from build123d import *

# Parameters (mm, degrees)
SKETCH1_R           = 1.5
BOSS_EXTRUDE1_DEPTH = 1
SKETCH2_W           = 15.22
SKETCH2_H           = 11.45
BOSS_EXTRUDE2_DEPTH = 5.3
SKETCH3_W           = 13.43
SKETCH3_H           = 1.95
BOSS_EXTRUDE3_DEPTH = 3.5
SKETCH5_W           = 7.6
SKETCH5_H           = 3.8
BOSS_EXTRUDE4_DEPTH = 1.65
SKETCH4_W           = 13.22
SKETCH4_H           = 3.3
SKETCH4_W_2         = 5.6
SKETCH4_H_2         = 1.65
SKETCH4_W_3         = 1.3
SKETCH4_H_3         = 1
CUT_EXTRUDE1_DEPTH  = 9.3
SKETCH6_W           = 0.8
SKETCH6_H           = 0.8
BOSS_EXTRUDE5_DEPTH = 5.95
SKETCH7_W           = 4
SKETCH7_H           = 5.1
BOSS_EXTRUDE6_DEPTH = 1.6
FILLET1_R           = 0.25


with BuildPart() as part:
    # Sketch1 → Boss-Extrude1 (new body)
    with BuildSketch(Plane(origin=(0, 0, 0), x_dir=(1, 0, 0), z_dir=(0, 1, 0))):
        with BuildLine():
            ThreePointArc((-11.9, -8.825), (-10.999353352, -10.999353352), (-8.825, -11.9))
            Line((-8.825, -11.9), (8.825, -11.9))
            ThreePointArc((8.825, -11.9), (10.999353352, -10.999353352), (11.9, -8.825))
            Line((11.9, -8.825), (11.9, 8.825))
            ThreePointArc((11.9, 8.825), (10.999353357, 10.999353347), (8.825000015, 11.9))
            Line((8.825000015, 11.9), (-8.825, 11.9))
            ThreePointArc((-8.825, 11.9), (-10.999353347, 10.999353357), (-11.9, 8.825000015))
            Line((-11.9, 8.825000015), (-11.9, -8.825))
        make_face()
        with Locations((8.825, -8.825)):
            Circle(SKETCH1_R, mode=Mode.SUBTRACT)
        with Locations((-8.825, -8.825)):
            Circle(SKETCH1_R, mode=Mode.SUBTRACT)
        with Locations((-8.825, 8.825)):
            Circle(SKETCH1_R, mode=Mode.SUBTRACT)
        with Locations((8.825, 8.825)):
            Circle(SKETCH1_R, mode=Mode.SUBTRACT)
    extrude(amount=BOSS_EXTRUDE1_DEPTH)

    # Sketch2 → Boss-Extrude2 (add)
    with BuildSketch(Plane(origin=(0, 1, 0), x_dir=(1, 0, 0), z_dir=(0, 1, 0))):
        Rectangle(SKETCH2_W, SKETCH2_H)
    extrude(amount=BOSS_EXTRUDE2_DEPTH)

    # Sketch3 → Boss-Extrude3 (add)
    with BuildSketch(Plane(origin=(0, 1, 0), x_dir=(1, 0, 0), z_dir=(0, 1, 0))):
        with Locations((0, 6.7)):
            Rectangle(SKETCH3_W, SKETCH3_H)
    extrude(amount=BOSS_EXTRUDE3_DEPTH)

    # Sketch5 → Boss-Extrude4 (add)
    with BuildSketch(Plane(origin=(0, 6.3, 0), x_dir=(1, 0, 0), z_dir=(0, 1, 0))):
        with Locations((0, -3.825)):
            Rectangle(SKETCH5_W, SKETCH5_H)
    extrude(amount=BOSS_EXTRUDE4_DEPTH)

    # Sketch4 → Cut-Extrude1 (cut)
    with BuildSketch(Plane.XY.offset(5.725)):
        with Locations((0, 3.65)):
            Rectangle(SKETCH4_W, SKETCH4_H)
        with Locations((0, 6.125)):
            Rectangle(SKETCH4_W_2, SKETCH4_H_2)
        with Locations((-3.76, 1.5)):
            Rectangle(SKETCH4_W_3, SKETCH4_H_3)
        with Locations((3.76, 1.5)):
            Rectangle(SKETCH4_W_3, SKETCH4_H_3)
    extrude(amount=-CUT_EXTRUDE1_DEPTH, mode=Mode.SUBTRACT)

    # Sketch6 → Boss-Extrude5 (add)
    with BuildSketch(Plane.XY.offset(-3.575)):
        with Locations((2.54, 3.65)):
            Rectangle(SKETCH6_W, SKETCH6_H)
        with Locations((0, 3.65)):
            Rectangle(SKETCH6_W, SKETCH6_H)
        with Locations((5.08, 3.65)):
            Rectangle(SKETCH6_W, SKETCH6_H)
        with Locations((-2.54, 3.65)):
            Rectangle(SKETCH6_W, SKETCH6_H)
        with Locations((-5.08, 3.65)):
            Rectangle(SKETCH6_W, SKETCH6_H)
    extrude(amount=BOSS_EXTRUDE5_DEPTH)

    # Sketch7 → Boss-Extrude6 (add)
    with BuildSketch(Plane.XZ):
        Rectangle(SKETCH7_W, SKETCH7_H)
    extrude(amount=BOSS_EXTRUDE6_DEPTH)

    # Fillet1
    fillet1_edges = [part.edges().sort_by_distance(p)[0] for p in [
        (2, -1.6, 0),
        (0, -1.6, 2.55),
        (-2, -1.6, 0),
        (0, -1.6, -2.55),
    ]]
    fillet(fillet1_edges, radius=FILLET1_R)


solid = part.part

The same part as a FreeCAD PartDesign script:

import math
import FreeCAD as App
import Part
import Sketcher
Q = App.Units.Quantity


def edges_at(feature, points):
    """Names of the edges that pass closest to the given points."""
    edges = feature.Shape.Edges
    near = lambda p: min(range(len(edges)), key=lambda i: edges[i].distToShape(Part.Vertex(*p))[0])
    return sorted({f"Edge{near(p) + 1}" for p in points})


def add_polygon(sketch, points):
    """Adds a closed chain of lines whose ends are joined by coincident constraints."""
    first, n = sketch.GeometryCount, len(points)
    for a, b in zip(points, points[1:] + points[:1]):
        sketch.addGeometry(Part.LineSegment(App.Vector(*a, 0), App.Vector(*b, 0)), False)
    for i in range(n):
        sketch.addConstraint(Sketcher.Constraint("Coincident", first + i, 2, first + (i + 1) % n, 1))

doc = App.newDocument("Part")
body = doc.addObject("PartDesign::Body", "Body")

# Sketch on XZ plane
sketch1 = doc.addObject("Sketcher::SketchObject", "Sketch")
body.addObject(sketch1)
sketch1.AttachmentSupport = (doc.XZ_Plane, [""])
sketch1.MapMode = "FlatFace"
sketch1.addGeometry(Part.ArcOfCircle(Part.Circle(App.Vector(-8.8, 8.8, 0), App.Vector(0, 0, 1), 3.1), math.radians(90), math.radians(180)), False)
sketch1.addGeometry(Part.LineSegment(App.Vector(-8.8, 11.9, 0), App.Vector(8.8, 11.9, 0)), False)
sketch1.addGeometry(Part.ArcOfCircle(Part.Circle(App.Vector(8.8, 8.8, 0), App.Vector(0, 0, 1), 3.1), math.radians(0), math.radians(90)), False)
sketch1.addGeometry(Part.LineSegment(App.Vector(11.9, 8.8, 0), App.Vector(11.9, -8.8, 0)), False)
sketch1.addGeometry(Part.ArcOfCircle(Part.Circle(App.Vector(8.8, -8.8, 0), App.Vector(0, 0, 1), 3.1), math.radians(-90), math.radians(0)), False)
sketch1.addGeometry(Part.LineSegment(App.Vector(8.8, -11.9, 0), App.Vector(-8.8, -11.9, 0)), False)
sketch1.addGeometry(Part.ArcOfCircle(Part.Circle(App.Vector(-8.8, -8.8, 0), App.Vector(0, 0, 1), 3.1), math.radians(-180), math.radians(-90)), False)
sketch1.addGeometry(Part.LineSegment(App.Vector(-11.9, -8.8, 0), App.Vector(-11.9, 8.8, 0)), False)
sketch1.addGeometry(Part.Circle(App.Vector(-8.8, 8.8, 0), App.Vector(0, 0, 1), 1.5), False)
sketch1.addGeometry(Part.Circle(App.Vector(8.8, 8.8, 0), App.Vector(0, 0, 1), 1.5), False)
sketch1.addGeometry(Part.Circle(App.Vector(-8.8, -8.8, 0), App.Vector(0, 0, 1), 1.5), False)
sketch1.addGeometry(Part.Circle(App.Vector(8.8, -8.8, 0), App.Vector(0, 0, 1), 1.5), False)
sketch1.addConstraint(Sketcher.Constraint("Tangent", 0, 1, 1, 1))
sketch1.addConstraint(Sketcher.Constraint("Tangent", 1, 2, 2, 2))
sketch1.addConstraint(Sketcher.Constraint("Tangent", 2, 1, 3, 1))
sketch1.addConstraint(Sketcher.Constraint("Tangent", 3, 2, 4, 2))
sketch1.addConstraint(Sketcher.Constraint("Tangent", 4, 1, 5, 1))
sketch1.addConstraint(Sketcher.Constraint("Tangent", 5, 2, 6, 2))
sketch1.addConstraint(Sketcher.Constraint("Tangent", 6, 1, 7, 1))
sketch1.addConstraint(Sketcher.Constraint("Tangent", 7, 2, 0, 2))
sketch1.addConstraint(Sketcher.Constraint("Horizontal", 1))
sketch1.addConstraint(Sketcher.Constraint("Vertical", 3))
sketch1.addConstraint(Sketcher.Constraint("Horizontal", 5))
sketch1.addConstraint(Sketcher.Constraint("Vertical", 7))
sketch1.addConstraint(Sketcher.Constraint("Coincident", 8, 3, 0, 3))
sketch1.addConstraint(Sketcher.Constraint("Coincident", 9, 3, 2, 3))
sketch1.addConstraint(Sketcher.Constraint("Coincident", 10, 3, 6, 3))
sketch1.addConstraint(Sketcher.Constraint("Coincident", 11, 3, 4, 3))
sketch1.addConstraint(Sketcher.Constraint("Equal", 0, 2))
sketch1.addConstraint(Sketcher.Constraint("Equal", 2, 4))
sketch1.addConstraint(Sketcher.Constraint("Equal", 4, 6))
sketch1.addConstraint(Sketcher.Constraint("Equal", 8, 9))
sketch1.addConstraint(Sketcher.Constraint("Equal", 9, 10))
sketch1.addConstraint(Sketcher.Constraint("Equal", 10, 11))
sketch1.addConstraint(Sketcher.Constraint("Symmetric", 0, 3, 4, 3, -1, 1))
sketch1.addConstraint(Sketcher.Constraint("Equal", 5, 3))
sketch1.addConstraint(Sketcher.Constraint("Diameter", 8, Q("3 mm")))
sketch1.addConstraint(Sketcher.Constraint("Radius", 0, Q("3.075 mm")))
sketch1.addConstraint(Sketcher.Constraint("DistanceX", 1, 1, 1, 2, Q("17.65 mm")))
pad1 = doc.addObject("PartDesign::Pad", "Pad")
body.addObject(pad1)
pad1.Profile = sketch1
pad1.Length = 1
pad1.Reversed = True

# Sketch on XZ plane
sketch2 = doc.addObject("Sketcher::SketchObject", "Sketch001")
body.addObject(sketch2)
sketch2.AttachmentSupport = (doc.XZ_Plane, [""])
sketch2.MapMode = "FlatFace"
sketch2.AttachmentOffset = App.Placement(App.Vector(0, 0, -1), App.Rotation())
add_polygon(sketch2, [(-8, -6), (-8, 6), (8, 6), (8, -6)])  # lines 0-3
sketch2.addConstraint(Sketcher.Constraint("Vertical", 0))
sketch2.addConstraint(Sketcher.Constraint("Horizontal", 1))
sketch2.addConstraint(Sketcher.Constraint("Vertical", 2))
sketch2.addConstraint(Sketcher.Constraint("Horizontal", 3))
sketch2.addConstraint(Sketcher.Constraint("Symmetric", 0, 2, 2, 2, -1, 1))
sketch2.addConstraint(Sketcher.Constraint("DistanceX", 1, 1, 1, 2, Q("15.22 mm")))
sketch2.addConstraint(Sketcher.Constraint("DistanceY", 0, 1, 0, 2, Q("11.45 mm")))
pad2 = doc.addObject("PartDesign::Pad", "Pad001")
body.addObject(pad2)
pad2.Profile = sketch2
pad2.Length = 5.3
pad2.Reversed = True

# Sketch on XZ plane
sketch3 = doc.addObject("Sketcher::SketchObject", "Sketch002")
body.addObject(sketch3)
sketch3.AttachmentSupport = (doc.XZ_Plane, [""])
sketch3.MapMode = "FlatFace"
sketch3.AttachmentOffset = App.Placement(App.Vector(0, 0, -1), App.Rotation())
add_polygon(sketch3, [(-6.7, -7.7), (-6.7, -5.7), (6.7, -5.7), (6.7, -7.7)])  # lines 0-3
sketch3.addConstraint(Sketcher.Constraint("Vertical", 0))
sketch3.addConstraint(Sketcher.Constraint("Horizontal", 1))
sketch3.addConstraint(Sketcher.Constraint("Vertical", 2))
sketch3.addConstraint(Sketcher.Constraint("Horizontal", 3))
sketch3.addConstraint(Sketcher.Constraint("DistanceX", 1, 1, 1, 2, Q("13.43 mm")))
sketch3.addConstraint(Sketcher.Constraint("DistanceY", 0, 1, 0, 2, Q("1.95 mm")))
sketch3.addConstraint(Sketcher.Constraint("DistanceX", 0, 2, -1, 1, Q("6.715 mm")))
sketch3.addConstraint(Sketcher.Constraint("DistanceY", 0, 2, -1, 1, Q("5.725 mm")))
pad3 = doc.addObject("PartDesign::Pad", "Pad002")
body.addObject(pad3)
pad3.Profile = sketch3
pad3.Length = 3.5
pad3.Reversed = True

# Sketch on XZ plane
sketch4 = doc.addObject("Sketcher::SketchObject", "Sketch003")
body.addObject(sketch4)
sketch4.AttachmentSupport = (doc.XZ_Plane, [""])
sketch4.MapMode = "FlatFace"
sketch4.AttachmentOffset = App.Placement(App.Vector(0, 0, -6.3), App.Rotation())
add_polygon(sketch4, [(-3.8, 1.9), (-3.8, 5.7), (3.8, 5.7), (3.8, 1.9)])  # lines 0-3
sketch4.addConstraint(Sketcher.Constraint("Vertical", 0))
sketch4.addConstraint(Sketcher.Constraint("Horizontal", 1))
sketch4.addConstraint(Sketcher.Constraint("Vertical", 2))
sketch4.addConstraint(Sketcher.Constraint("Horizontal", 3))
sketch4.addConstraint(Sketcher.Constraint("DistanceX", 1, 1, 1, 2, Q("7.6 mm")))
sketch4.addConstraint(Sketcher.Constraint("DistanceY", 0, 1, 0, 2, Q("3.8 mm")))
sketch4.addConstraint(Sketcher.Constraint("DistanceX", 0, 2, -1, 1, Q("3.8 mm")))
sketch4.addConstraint(Sketcher.Constraint("DistanceY", -1, 1, 0, 2, Q("5.725 mm")))
pad4 = doc.addObject("PartDesign::Pad", "Pad003")
body.addObject(pad4)
pad4.Profile = sketch4
pad4.Length = 1.65
pad4.Reversed = True

# Sketch on XY plane
sketch5 = doc.addObject("Sketcher::SketchObject", "Sketch004")
body.addObject(sketch5)
sketch5.AttachmentSupport = (doc.XY_Plane, [""])
sketch5.MapMode = "FlatFace"
sketch5.AttachmentOffset = App.Placement(App.Vector(0, 0, 5.725), App.Rotation())
add_polygon(sketch5, [(-6.6, 5.3), (-6.6, 2), (-4.4, 2), (-4.4, 1), (-3.1, 1), (-3.1, 2), (3.1, 2), (3.1, 1), (4.4, 1), (4.4, 2), (6.6, 2), (6.6, 5.3), (2.8, 5.3), (2.8, 7), (-2.8, 7), (-2.8, 5.3)])  # lines 0-15
sketch5.addConstraint(Sketcher.Constraint("Vertical", 0))
sketch5.addConstraint(Sketcher.Constraint("Horizontal", 1))
sketch5.addConstraint(Sketcher.Constraint("Vertical", 2))
sketch5.addConstraint(Sketcher.Constraint("Horizontal", 3))
sketch5.addConstraint(Sketcher.Constraint("Vertical", 4))
sketch5.addConstraint(Sketcher.Constraint("Horizontal", 5))
sketch5.addConstraint(Sketcher.Constraint("Vertical", 6))
sketch5.addConstraint(Sketcher.Constraint("Horizontal", 7))
sketch5.addConstraint(Sketcher.Constraint("Vertical", 8))
sketch5.addConstraint(Sketcher.Constraint("Horizontal", 9))
sketch5.addConstraint(Sketcher.Constraint("Vertical", 10))
sketch5.addConstraint(Sketcher.Constraint("Horizontal", 11))
sketch5.addConstraint(Sketcher.Constraint("Vertical", 12))
sketch5.addConstraint(Sketcher.Constraint("Horizontal", 13))
sketch5.addConstraint(Sketcher.Constraint("Vertical", 14))
sketch5.addConstraint(Sketcher.Constraint("Horizontal", 15))
sketch5.addConstraint(Sketcher.Constraint("Symmetric", 3, 2, 6, 2, -2))
sketch5.addConstraint(Sketcher.Constraint("Symmetric", 1, 2, 8, 2, -2))
sketch5.addConstraint(Sketcher.Constraint("Symmetric", 11, 2, 14, 2, -2))
sketch5.addConstraint(Sketcher.Constraint("Horizontal", 1, 2, 4, 2))
sketch5.addConstraint(Sketcher.Constraint("Equal", 1, 9))
sketch5.addConstraint(Sketcher.Constraint("DistanceY", 2, 2, 2, 1, Q("1 mm")))
sketch5.addConstraint(Sketcher.Constraint("DistanceX", 1, 1, 1, 2, Q("2.2 mm")))
sketch5.addConstraint(Sketcher.Constraint("DistanceX", 3, 1, 3, 2, Q("1.3 mm")))
sketch5.addConstraint(Sketcher.Constraint("DistanceX", 13, 2, 13, 1, Q("5.6 mm")))
sketch5.addConstraint(Sketcher.Constraint("DistanceY", 0, 2, 0, 1, Q("3.3 mm")))
sketch5.addConstraint(Sketcher.Constraint("DistanceY", -1, 1, 0, 2, Q("2 mm")))
sketch5.addConstraint(Sketcher.Constraint("DistanceX", 5, 1, 5, 2, Q("6.22 mm")))
sketch5.addConstraint(Sketcher.Constraint("DistanceY", 12, 1, 12, 2, Q("1.65 mm")))
pocket1 = doc.addObject("PartDesign::Pocket", "Pocket")
body.addObject(pocket1)
pocket1.Profile = sketch5
pocket1.Length = 9.3

# Sketch on XY plane
sketch6 = doc.addObject("Sketcher::SketchObject", "Sketch005")
body.addObject(sketch6)
sketch6.AttachmentSupport = (doc.XY_Plane, [""])
sketch6.MapMode = "FlatFace"
sketch6.AttachmentOffset = App.Placement(App.Vector(0, 0, -3.575), App.Rotation())
add_polygon(sketch6, [(2.1, 4), (2.1, 3.2), (2.9, 3.2), (2.9, 4)])  # lines 0-3
add_polygon(sketch6, [(-0.4, 4), (-0.4, 3.2), (0.4, 3.2), (0.4, 4)])  # lines 4-7
add_polygon(sketch6, [(4.7, 4), (4.7, 3.2), (5.5, 3.2), (5.5, 4)])  # lines 8-11
add_polygon(sketch6, [(-2.9, 4), (-2.9, 3.2), (-2.1, 3.2), (-2.1, 4)])  # lines 12-15
add_polygon(sketch6, [(-5.5, 4), (-5.5, 3.2), (-4.7, 3.2), (-4.7, 4)])  # lines 16-19
sketch6.addConstraint(Sketcher.Constraint("Vertical", 0))
sketch6.addConstraint(Sketcher.Constraint("Horizontal", 1))
sketch6.addConstraint(Sketcher.Constraint("Vertical", 2))
sketch6.addConstraint(Sketcher.Constraint("Horizontal", 3))
sketch6.addConstraint(Sketcher.Constraint("Vertical", 4))
sketch6.addConstraint(Sketcher.Constraint("Horizontal", 5))
sketch6.addConstraint(Sketcher.Constraint("Vertical", 6))
sketch6.addConstraint(Sketcher.Constraint("Horizontal", 7))
sketch6.addConstraint(Sketcher.Constraint("Vertical", 8))
sketch6.addConstraint(Sketcher.Constraint("Horizontal", 9))
sketch6.addConstraint(Sketcher.Constraint("Vertical", 10))
sketch6.addConstraint(Sketcher.Constraint("Horizontal", 11))
sketch6.addConstraint(Sketcher.Constraint("Vertical", 12))
sketch6.addConstraint(Sketcher.Constraint("Horizontal", 13))
sketch6.addConstraint(Sketcher.Constraint("Vertical", 14))
sketch6.addConstraint(Sketcher.Constraint("Horizontal", 15))
sketch6.addConstraint(Sketcher.Constraint("Vertical", 16))
sketch6.addConstraint(Sketcher.Constraint("Horizontal", 17))
sketch6.addConstraint(Sketcher.Constraint("Vertical", 18))
sketch6.addConstraint(Sketcher.Constraint("Horizontal", 19))
sketch6.addConstraint(Sketcher.Constraint("Symmetric", 1, 2, 12, 2, -2))
sketch6.addConstraint(Sketcher.Constraint("Symmetric", 3, 2, 14, 2, -2))
sketch6.addConstraint(Sketcher.Constraint("Symmetric", 9, 2, 16, 2, -2))
sketch6.addConstraint(Sketcher.Constraint("Symmetric", 11, 2, 18, 2, -2))
sketch6.addConstraint(Sketcher.Constraint("Horizontal", 1, 2, 4, 2))
sketch6.addConstraint(Sketcher.Constraint("Horizontal", 3, 2, 6, 2))
sketch6.addConstraint(Sketcher.Constraint("Horizontal", 5, 2, 8, 2))
sketch6.addConstraint(Sketcher.Constraint("Horizontal", 7, 2, 10, 2))
sketch6.addConstraint(Sketcher.Constraint("Equal", 3, 5))
sketch6.addConstraint(Sketcher.Constraint("Equal", 7, 9))
sketch6.addConstraint(Sketcher.Constraint("Equal", 19, 0))
sketch6.addConstraint(Sketcher.Constraint("DistanceX", 1, 1, 1, 2, Q("0.8 mm")))
sketch6.addConstraint(Sketcher.Constraint("DistanceX", 4, 2, -1, 1, Q("0.4 mm")))
sketch6.addConstraint(Sketcher.Constraint("DistanceX", -1, 1, 0, 2, Q("2.14 mm")))
sketch6.addConstraint(Sketcher.Constraint("DistanceY", -1, 1, 0, 2, Q("3.25 mm")))
sketch6.addConstraint(Sketcher.Constraint("DistanceX", -1, 1, 8, 2, Q("4.68 mm")))
pad5 = doc.addObject("PartDesign::Pad", "Pad004")
body.addObject(pad5)
pad5.Profile = sketch6
pad5.Length = 5.95

# Sketch on XZ plane
sketch7 = doc.addObject("Sketcher::SketchObject", "Sketch006")
body.addObject(sketch7)
sketch7.AttachmentSupport = (doc.XZ_Plane, [""])
sketch7.MapMode = "FlatFace"
add_polygon(sketch7, [(-2, 2.5), (-2, -2.5), (2, -2.5), (2, 2.5)])  # lines 0-3
sketch7.addConstraint(Sketcher.Constraint("Vertical", 0))
sketch7.addConstraint(Sketcher.Constraint("Horizontal", 1))
sketch7.addConstraint(Sketcher.Constraint("Vertical", 2))
sketch7.addConstraint(Sketcher.Constraint("Horizontal", 3))
sketch7.addConstraint(Sketcher.Constraint("Symmetric", 0, 2, 2, 2, -1, 1))
sketch7.addConstraint(Sketcher.Constraint("DistanceX", 1, 1, 1, 2, Q("4 mm")))
sketch7.addConstraint(Sketcher.Constraint("DistanceY", 0, 2, 0, 1, Q("5.1 mm")))
pad6 = doc.addObject("PartDesign::Pad", "Pad005")
body.addObject(pad6)
pad6.Profile = sketch7
pad6.Length = 1.6
doc.recompute()

fillet = doc.addObject("PartDesign::Fillet", "Fillet")
body.addObject(fillet)
fillet.Base = (pad6, edges_at(pad6, [
    (2, -1.6, 0),
    (0, -1.6, 2.55),
    (-2, -1.6, 0),
    (0, -1.6, -2.55),
]))
fillet.Radius = 0.25

doc.recompute()
